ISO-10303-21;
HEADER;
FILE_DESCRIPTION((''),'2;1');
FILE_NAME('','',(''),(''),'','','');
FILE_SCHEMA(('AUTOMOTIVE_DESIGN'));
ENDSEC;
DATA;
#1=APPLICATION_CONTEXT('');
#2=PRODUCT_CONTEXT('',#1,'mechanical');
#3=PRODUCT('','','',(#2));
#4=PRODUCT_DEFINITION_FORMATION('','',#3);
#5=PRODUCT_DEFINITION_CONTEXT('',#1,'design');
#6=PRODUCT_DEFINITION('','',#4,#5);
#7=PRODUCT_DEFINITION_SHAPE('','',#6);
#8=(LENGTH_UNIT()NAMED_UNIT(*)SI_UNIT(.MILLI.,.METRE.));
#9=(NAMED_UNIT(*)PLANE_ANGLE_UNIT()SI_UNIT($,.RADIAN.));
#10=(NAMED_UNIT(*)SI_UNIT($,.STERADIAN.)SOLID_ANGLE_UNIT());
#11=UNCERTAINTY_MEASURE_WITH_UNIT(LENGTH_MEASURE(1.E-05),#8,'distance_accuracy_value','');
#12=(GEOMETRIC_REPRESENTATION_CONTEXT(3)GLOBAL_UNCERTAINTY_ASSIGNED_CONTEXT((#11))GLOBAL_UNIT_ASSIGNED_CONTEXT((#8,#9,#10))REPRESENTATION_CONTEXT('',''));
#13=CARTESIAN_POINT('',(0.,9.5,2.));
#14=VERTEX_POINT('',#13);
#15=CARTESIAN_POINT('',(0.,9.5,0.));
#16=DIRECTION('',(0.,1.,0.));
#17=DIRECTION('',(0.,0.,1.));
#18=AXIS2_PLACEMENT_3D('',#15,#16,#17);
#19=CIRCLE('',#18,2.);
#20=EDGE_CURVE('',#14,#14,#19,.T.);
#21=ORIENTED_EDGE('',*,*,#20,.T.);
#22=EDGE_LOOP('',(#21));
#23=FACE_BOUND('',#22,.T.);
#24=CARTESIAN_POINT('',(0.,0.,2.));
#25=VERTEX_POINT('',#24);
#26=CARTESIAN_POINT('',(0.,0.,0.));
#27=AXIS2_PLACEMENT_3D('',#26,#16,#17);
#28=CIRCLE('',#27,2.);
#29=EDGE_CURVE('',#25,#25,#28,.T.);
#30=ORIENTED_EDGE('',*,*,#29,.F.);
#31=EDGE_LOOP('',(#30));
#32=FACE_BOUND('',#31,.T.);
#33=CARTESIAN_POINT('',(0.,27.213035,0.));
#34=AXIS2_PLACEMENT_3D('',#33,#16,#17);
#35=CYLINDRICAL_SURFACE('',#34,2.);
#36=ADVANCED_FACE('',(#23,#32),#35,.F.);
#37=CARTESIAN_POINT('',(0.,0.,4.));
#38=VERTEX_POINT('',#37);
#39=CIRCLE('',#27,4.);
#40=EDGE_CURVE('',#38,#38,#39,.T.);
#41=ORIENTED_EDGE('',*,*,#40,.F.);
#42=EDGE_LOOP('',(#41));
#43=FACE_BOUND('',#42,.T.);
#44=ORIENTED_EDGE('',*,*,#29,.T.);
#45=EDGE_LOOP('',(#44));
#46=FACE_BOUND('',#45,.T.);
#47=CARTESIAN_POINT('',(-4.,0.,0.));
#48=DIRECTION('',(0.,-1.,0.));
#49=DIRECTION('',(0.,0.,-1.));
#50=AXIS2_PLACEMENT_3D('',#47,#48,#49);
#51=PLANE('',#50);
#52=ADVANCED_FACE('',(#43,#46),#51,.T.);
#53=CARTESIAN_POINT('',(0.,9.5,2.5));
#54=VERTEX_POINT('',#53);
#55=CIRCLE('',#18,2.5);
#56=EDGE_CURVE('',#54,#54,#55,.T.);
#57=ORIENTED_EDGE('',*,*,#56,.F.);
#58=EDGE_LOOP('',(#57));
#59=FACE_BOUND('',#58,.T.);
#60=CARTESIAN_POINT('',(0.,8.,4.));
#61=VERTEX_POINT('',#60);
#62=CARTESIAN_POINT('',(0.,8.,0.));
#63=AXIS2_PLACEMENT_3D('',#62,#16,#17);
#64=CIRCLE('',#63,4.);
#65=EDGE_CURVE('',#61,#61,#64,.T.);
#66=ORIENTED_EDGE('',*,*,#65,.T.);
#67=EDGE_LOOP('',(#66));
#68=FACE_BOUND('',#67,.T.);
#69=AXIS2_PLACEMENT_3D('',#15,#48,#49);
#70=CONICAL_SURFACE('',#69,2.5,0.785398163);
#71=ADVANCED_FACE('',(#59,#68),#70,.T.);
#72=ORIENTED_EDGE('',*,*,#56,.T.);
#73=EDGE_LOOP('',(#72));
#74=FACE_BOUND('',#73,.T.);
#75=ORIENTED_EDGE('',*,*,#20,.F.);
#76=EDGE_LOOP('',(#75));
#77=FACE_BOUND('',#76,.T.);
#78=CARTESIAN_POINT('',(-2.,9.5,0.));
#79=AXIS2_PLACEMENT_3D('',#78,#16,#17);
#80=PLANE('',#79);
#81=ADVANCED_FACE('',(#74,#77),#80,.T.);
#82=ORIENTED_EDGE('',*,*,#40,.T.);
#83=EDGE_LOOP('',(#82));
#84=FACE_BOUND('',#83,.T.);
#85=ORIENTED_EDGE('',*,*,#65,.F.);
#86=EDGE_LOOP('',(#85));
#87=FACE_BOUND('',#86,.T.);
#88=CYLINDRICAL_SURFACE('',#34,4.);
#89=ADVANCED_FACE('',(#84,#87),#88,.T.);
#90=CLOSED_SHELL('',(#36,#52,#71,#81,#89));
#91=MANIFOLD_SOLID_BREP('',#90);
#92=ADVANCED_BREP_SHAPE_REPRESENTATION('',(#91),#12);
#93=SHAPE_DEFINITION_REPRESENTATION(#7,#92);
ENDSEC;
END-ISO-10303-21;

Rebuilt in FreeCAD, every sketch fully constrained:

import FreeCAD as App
import Part
import Sketcher

V = App.Vector
Q = App.Units.Quantity

doc = App.newDocument("Part")
body = doc.addObject("PartDesign::Body", "Body")

# Sketch on XY plane
sketch1 = doc.addObject("Sketcher::SketchObject", "Sketch")
body.addObject(sketch1)
sketch1.AttachmentSupport = (doc.XY_Plane, [""])
sketch1.MapMode = "FlatFace"
sketch1.addGeometry(Part.LineSegment(V(-2, 9.5, 0), V(-2.5, 9.5, 0)), False)
sketch1.addGeometry(Part.LineSegment(V(-2.5, 9.5, 0), V(-4, 8, 0)), False)
sketch1.addGeometry(Part.LineSegment(V(-4, 8, 0), V(-4, 0, 0)), False)
sketch1.addGeometry(Part.LineSegment(V(-4, 0, 0), V(-2, 0, 0)), False)
sketch1.addGeometry(Part.LineSegment(V(-2, 0, 0), V(-2, 9.5, 0)), False)
sketch1.addConstraint(Sketcher.Constraint("Coincident", 0, 2, 1, 1))
sketch1.addConstraint(Sketcher.Constraint("Coincident", 1, 2, 2, 1))
sketch1.addConstraint(Sketcher.Constraint("Coincident", 2, 2, 3, 1))
sketch1.addConstraint(Sketcher.Constraint("Coincident", 3, 2, 4, 1))
sketch1.addConstraint(Sketcher.Constraint("Coincident", 4, 2, 0, 1))
sketch1.addConstraint(Sketcher.Constraint("Horizontal", 0))
sketch1.addConstraint(Sketcher.Constraint("Vertical", 2))
sketch1.addConstraint(Sketcher.Constraint("Horizontal", 3))
sketch1.addConstraint(Sketcher.Constraint("Vertical", 4))
sketch1.addConstraint(Sketcher.Constraint("PointOnObject", 2, 2, -1))
sketch1.addConstraint(Sketcher.Constraint("DistanceX", 3, 1, 3, 2, 2.0))
sketch1.addConstraint(Sketcher.Constraint("DistanceY", 2, 2, 2, 1, 8.0))
sketch1.addConstraint(Sketcher.Constraint("Angle", 1, Q("-135 deg")))
sketch1.addConstraint(Sketcher.Constraint("DistanceX", 0, 2, 0, 1, 0.5))
sketch1.addConstraint(Sketcher.Constraint("DistanceX", 1, 2, -1, 1, 4.0))
revolution = doc.addObject("PartDesign::Revolution", "Revolution")
body.addObject(revolution)
revolution.Profile = sketch1
revolution.ReferenceAxis = (sketch1, ["V_Axis"])
revolution.Angle = 360

doc.recompute()
